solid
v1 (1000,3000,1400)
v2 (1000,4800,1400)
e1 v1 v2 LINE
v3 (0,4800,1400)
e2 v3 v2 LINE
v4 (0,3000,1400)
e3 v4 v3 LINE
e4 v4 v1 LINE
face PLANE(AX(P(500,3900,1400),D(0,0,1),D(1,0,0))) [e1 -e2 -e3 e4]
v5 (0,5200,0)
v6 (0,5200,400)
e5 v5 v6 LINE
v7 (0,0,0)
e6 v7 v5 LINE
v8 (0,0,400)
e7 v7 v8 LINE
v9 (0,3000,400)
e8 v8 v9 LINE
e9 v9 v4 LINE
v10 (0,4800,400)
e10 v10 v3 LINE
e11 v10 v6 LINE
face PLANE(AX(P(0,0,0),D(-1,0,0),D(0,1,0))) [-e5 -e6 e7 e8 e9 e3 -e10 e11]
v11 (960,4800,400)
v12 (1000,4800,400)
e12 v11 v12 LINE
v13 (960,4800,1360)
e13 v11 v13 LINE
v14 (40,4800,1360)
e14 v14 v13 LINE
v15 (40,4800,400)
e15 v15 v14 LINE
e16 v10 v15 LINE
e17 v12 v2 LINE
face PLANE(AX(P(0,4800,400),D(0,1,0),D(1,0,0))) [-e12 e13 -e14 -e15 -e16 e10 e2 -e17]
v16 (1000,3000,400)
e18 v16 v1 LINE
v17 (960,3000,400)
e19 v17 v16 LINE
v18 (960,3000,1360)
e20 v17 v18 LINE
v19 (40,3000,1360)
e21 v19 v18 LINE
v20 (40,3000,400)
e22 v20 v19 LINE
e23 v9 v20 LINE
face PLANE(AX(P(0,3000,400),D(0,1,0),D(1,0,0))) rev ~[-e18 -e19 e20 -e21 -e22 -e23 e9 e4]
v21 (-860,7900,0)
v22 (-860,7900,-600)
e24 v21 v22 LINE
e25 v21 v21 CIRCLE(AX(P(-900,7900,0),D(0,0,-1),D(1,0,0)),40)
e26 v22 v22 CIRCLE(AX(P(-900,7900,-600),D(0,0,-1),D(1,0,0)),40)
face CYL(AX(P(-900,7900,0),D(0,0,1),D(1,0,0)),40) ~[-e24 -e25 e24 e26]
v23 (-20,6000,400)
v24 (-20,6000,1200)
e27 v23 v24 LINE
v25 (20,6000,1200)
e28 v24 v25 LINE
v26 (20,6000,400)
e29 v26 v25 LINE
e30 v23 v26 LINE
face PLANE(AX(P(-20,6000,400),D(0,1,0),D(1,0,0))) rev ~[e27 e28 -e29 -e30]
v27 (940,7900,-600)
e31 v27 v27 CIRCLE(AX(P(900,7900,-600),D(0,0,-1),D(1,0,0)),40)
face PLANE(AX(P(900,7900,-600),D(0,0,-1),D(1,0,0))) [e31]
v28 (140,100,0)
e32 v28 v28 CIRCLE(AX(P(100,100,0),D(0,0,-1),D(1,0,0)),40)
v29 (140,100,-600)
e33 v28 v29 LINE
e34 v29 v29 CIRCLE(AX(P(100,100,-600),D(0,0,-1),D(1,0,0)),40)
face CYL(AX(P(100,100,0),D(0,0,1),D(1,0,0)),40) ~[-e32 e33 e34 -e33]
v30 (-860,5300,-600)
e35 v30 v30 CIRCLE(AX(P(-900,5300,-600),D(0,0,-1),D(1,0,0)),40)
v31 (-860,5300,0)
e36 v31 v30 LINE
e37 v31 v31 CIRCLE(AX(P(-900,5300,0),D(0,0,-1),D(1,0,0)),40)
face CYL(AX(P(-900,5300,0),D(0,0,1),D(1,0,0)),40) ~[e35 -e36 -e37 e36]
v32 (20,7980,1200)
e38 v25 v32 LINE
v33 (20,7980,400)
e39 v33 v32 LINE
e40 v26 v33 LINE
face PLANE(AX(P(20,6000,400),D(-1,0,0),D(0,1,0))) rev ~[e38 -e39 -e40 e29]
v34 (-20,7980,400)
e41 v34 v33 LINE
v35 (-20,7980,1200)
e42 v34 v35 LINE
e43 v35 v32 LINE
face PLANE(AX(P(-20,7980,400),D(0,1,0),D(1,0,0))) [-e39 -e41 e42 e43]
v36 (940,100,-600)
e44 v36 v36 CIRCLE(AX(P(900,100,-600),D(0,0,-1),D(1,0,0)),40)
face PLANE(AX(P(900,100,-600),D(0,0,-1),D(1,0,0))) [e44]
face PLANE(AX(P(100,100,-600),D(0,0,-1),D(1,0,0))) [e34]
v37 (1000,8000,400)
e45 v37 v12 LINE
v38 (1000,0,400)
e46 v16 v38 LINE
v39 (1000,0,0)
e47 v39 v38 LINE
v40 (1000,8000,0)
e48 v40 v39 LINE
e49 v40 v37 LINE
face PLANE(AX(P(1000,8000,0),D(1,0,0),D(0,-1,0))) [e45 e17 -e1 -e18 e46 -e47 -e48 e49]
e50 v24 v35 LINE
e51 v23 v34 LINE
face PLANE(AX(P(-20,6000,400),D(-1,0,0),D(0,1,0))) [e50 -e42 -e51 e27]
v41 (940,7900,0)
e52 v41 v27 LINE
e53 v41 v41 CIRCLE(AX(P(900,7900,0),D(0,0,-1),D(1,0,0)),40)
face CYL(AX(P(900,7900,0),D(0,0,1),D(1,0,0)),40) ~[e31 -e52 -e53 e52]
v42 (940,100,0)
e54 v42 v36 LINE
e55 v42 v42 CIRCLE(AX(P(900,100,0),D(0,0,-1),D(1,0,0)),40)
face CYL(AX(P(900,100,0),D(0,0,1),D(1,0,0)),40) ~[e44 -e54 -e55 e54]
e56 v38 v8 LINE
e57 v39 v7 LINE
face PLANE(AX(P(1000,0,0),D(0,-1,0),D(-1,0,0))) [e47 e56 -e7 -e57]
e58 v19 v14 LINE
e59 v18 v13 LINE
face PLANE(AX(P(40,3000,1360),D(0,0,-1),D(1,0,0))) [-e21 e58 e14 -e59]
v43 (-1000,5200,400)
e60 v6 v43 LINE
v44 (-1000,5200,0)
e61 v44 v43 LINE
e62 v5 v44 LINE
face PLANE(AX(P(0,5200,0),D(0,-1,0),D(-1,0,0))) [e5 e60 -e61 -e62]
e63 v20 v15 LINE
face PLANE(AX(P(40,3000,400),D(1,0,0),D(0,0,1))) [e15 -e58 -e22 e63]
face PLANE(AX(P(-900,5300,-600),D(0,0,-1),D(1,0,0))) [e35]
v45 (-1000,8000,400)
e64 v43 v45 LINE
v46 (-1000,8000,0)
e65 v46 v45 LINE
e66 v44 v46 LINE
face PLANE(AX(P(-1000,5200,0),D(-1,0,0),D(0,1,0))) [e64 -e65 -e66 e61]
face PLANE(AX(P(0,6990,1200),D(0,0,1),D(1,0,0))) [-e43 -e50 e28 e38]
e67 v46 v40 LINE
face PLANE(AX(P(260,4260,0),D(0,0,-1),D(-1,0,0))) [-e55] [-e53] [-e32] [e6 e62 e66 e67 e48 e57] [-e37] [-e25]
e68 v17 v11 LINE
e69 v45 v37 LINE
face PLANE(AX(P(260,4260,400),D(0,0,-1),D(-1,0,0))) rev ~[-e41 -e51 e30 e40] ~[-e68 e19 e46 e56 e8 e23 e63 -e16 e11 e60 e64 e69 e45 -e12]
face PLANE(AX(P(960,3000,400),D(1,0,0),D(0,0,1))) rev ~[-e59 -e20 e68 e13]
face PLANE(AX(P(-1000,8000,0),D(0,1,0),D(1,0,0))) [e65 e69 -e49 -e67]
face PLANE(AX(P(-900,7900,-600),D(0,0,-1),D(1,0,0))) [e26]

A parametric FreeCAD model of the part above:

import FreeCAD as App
import Part
import Sketcher

V = App.Vector


def add_polygon(sketch, points):
    """Adds a closed chain of lines whose ends are joined by coincident constraints."""
    first, n = sketch.GeometryCount, len(points)
    for a, b in zip(points, points[1:] + points[:1]):
        sketch.addGeometry(Part.LineSegment(App.Vector(*a, 0), App.Vector(*b, 0)), False)
    for i in range(n):
        sketch.addConstraint(Sketcher.Constraint("Coincident", first + i, 2, first + (i + 1) % n, 1))

doc = App.newDocument("Part")
params = doc.addObject("Spreadsheet::Sheet", "Params")
for row, (alias, value) in enumerate([
    ("sketch1_width", "2000 mm"),
    ("sketch1_height", "2800 mm"),
    ("sketch1_height2", "5200 mm"),
    ("pad1_length", "400 mm"),
    ("sketch2_diameter", "80 mm"),
    ("pad2_length", "600 mm"),
    ("sketch3_width", "1000 mm"),
    ("sketch3_height", "1800 mm"),
    ("pad3_length", "1000 mm"),
    ("sketch4_width", "920 mm"),
    ("sketch4_height", "960 mm"),
    ("pocket1_length", "1800 mm"),
    ("sketch5_width", "40 mm"),
    ("sketch5_height", "1980 mm"),
    ("pad4_length", "800 mm"),
], start=1):
    params.set(f"A{row}", alias)
    params.set(f"B{row}", "=" + value)
    params.setAlias(f"B{row}", alias)

body = doc.addObject("PartDesign::Body", "Body")

sketch1 = body.newObject("Sketcher::SketchObject", "Sketch")
sketch1.AttachmentSupport = (doc.getObject("XY_Plane"), [""])
sketch1.MapMode = "FlatFace"
add_polygon(sketch1, [(1000, 8000), (-1000, 8000), (-1000, 5200), (0, 5200), (0, 0), (1000, 0)])
sketch1.addConstraint([
    Sketcher.Constraint("Horizontal", 0),
    Sketcher.Constraint("Vertical", 1),
    Sketcher.Constraint("Horizontal", 2),
    Sketcher.Constraint("Vertical", 3),
    Sketcher.Constraint("Horizontal", 4),
    Sketcher.Constraint("Vertical", 5),
    Sketcher.Constraint("Coincident", 3, 2, -1, 1),
    Sketcher.Constraint("Equal", 2, 4),
    Sketcher.Constraint("DistanceX", 0, 2, 0, 1, 2000.0),
    Sketcher.Constraint("DistanceY", 1, 2, 1, 1, 2800.0),
    Sketcher.Constraint("DistanceY", 3, 2, 3, 1, 5200.0),
])
sketch1.setExpression("Constraints[14]", "Params.sketch1_width")
sketch1.setExpression("Constraints[15]", "Params.sketch1_height")
sketch1.setExpression("Constraints[16]", "Params.sketch1_height2")
pad1 = body.newObject("PartDesign::Pad", "Pad")
pad1.Profile = sketch1
pad1.setExpression("Length", "Params.pad1_length")

sketch2 = body.newObject("Sketcher::SketchObject", "Sketch001")
sketch2.AttachmentSupport = (doc.getObject("XY_Plane"), [""])
sketch2.MapMode = "FlatFace"
sketch2.addGeometry([
    Part.Circle(V(100, 100, 0), V(0, 0, 1), 40),
    Part.Circle(V(900, 100, 0), V(0, 0, 1), 40),
    Part.Circle(V(-900, 5300, 0), V(0, 0, 1), 40),
    Part.Circle(V(-900, 7900, 0), V(0, 0, 1), 40),
    Part.Circle(V(900, 7900, 0), V(0, 0, 1), 40),
], False)
sketch2.addConstraint([
    Sketcher.Constraint("Equal", 0, 1),
    Sketcher.Constraint("Equal", 1, 2),
    Sketcher.Constraint("Equal", 2, 3),
    Sketcher.Constraint("Equal", 3, 4),
    Sketcher.Constraint("Symmetric", 3, 3, 4, 3, -2),
    Sketcher.Constraint("Horizontal", 0, 3, 1, 3),
    Sketcher.Constraint("Vertical", 2, 3, 3, 3),
    Sketcher.Constraint("Vertical", 1, 3, 4, 3),
    Sketcher.Constraint("Diameter", 0, 80.0),
    Sketcher.Constraint("DistanceX", -1, 1, 0, 3, 100.0),
    Sketcher.Constraint("DistanceY", -1, 1, 0, 3, 100.0),
    Sketcher.Constraint("DistanceX", -1, 1, 1, 3, 900.0),
    Sketcher.Constraint("DistanceY", -1, 1, 2, 3, 5300.0),
    Sketcher.Constraint("DistanceY", -1, 1, 3, 3, 7900.0),
])
sketch2.setExpression("Constraints[8]", "Params.sketch2_diameter")
pad2 = body.newObject("PartDesign::Pad", "Pad001")
pad2.Profile = sketch2
pad2.setExpression("Length", "Params.pad2_length")
pad2.Reversed = True

sketch3 = body.newObject("Sketcher::SketchObject", "Sketch002")
sketch3.AttachmentSupport = (doc.getObject("XY_Plane"), [""])
sketch3.MapMode = "FlatFace"
sketch3.AttachmentOffset = App.Placement(V(0, 0, 400), App.Rotation())
add_polygon(sketch3, [(0, 4800), (0, 3000), (1000, 3000), (1000, 4800)])
sketch3.addConstraint([
    Sketcher.Constraint("Vertical", 0),
    Sketcher.Constraint("Horizontal", 1),
    Sketcher.Constraint("Vertical", 2),
    Sketcher.Constraint("Horizontal", 3),
    Sketcher.Constraint("PointOnObject", 0, 2, -2),
    Sketcher.Constraint("DistanceX", 1, 1, 1, 2, 1000.0),
    Sketcher.Constraint("DistanceY", 0, 2, 0, 1, 1800.0),
    Sketcher.Constraint("DistanceY", -1, 1, 0, 2, 3000.0),
])
sketch3.setExpression("Constraints[9]", "Params.sketch3_width")
sketch3.setExpression("Constraints[10]", "Params.sketch3_height")
pad3 = body.newObject("PartDesign::Pad", "Pad002")
pad3.Profile = sketch3
pad3.setExpression("Length", "Params.pad3_length")

sketch4 = body.newObject("Sketcher::SketchObject", "Sketch003")
sketch4.AttachmentSupport = (doc.getObject("XZ_Plane"), [""])
sketch4.MapMode = "FlatFace"
sketch4.AttachmentOffset = App.Placement(V(0, 0, -3000), App.Rotation())
add_polygon(sketch4, [(40, 1360), (40, 400), (960, 400), (960, 1360)])
sketch4.addConstraint([
    Sketcher.Constraint("Vertical", 0),
    Sketcher.Constraint("Horizontal", 1),
    Sketcher.Constraint("Vertical", 2),
    Sketcher.Constraint("Horizontal", 3),
    Sketcher.Constraint("DistanceX", 1, 1, 1, 2, 920.0),
    Sketcher.Constraint("DistanceY", 0, 2, 0, 1, 960.0),
    Sketcher.Constraint("DistanceX", -1, 1, 0, 2, 40.0),
    Sketcher.Constraint("DistanceY", -1, 1, 0, 2, 400.0),
])
sketch4.setExpression("Constraints[8]", "Params.sketch4_width")
sketch4.setExpression("Constraints[9]", "Params.sketch4_height")
pocket1 = body.newObject("PartDesign::Pocket", "Pocket")
pocket1.Profile = sketch4
pocket1.setExpression("Length", "Params.pocket1_length")

sketch5 = body.newObject("Sketcher::SketchObject", "Sketch004")
sketch5.AttachmentSupport = (doc.getObject("XY_Plane"), [""])
sketch5.MapMode = "FlatFace"
sketch5.AttachmentOffset = App.Placement(V(0, 0, 400), App.Rotation())
add_polygon(sketch5, [(-20, 7980), (-20, 6000), (20, 6000), (20, 7980)])
sketch5.addConstraint([
    Sketcher.Constraint("Vertical", 0),
    Sketcher.Constraint("Horizontal", 1),
    Sketcher.Constraint("Vertical", 2),
    Sketcher.Constraint("Horizontal", 3),
    Sketcher.Constraint("DistanceX", 1, 1, 1, 2, 40.0),
    Sketcher.Constraint("DistanceY", 0, 2, 0, 1, 1980.0),
    Sketcher.Constraint("DistanceX", 0, 2, -1, 1, 20.0),
    Sketcher.Constraint("DistanceY", -1, 1, 0, 2, 6000.0),
])
sketch5.setExpression("Constraints[8]", "Params.sketch5_width")
sketch5.setExpression("Constraints[9]", "Params.sketch5_height")
pad4 = body.newObject("PartDesign::Pad", "Pad003")
pad4.Profile = sketch5
pad4.setExpression("Length", "Params.pad4_length")

doc.recompute()
